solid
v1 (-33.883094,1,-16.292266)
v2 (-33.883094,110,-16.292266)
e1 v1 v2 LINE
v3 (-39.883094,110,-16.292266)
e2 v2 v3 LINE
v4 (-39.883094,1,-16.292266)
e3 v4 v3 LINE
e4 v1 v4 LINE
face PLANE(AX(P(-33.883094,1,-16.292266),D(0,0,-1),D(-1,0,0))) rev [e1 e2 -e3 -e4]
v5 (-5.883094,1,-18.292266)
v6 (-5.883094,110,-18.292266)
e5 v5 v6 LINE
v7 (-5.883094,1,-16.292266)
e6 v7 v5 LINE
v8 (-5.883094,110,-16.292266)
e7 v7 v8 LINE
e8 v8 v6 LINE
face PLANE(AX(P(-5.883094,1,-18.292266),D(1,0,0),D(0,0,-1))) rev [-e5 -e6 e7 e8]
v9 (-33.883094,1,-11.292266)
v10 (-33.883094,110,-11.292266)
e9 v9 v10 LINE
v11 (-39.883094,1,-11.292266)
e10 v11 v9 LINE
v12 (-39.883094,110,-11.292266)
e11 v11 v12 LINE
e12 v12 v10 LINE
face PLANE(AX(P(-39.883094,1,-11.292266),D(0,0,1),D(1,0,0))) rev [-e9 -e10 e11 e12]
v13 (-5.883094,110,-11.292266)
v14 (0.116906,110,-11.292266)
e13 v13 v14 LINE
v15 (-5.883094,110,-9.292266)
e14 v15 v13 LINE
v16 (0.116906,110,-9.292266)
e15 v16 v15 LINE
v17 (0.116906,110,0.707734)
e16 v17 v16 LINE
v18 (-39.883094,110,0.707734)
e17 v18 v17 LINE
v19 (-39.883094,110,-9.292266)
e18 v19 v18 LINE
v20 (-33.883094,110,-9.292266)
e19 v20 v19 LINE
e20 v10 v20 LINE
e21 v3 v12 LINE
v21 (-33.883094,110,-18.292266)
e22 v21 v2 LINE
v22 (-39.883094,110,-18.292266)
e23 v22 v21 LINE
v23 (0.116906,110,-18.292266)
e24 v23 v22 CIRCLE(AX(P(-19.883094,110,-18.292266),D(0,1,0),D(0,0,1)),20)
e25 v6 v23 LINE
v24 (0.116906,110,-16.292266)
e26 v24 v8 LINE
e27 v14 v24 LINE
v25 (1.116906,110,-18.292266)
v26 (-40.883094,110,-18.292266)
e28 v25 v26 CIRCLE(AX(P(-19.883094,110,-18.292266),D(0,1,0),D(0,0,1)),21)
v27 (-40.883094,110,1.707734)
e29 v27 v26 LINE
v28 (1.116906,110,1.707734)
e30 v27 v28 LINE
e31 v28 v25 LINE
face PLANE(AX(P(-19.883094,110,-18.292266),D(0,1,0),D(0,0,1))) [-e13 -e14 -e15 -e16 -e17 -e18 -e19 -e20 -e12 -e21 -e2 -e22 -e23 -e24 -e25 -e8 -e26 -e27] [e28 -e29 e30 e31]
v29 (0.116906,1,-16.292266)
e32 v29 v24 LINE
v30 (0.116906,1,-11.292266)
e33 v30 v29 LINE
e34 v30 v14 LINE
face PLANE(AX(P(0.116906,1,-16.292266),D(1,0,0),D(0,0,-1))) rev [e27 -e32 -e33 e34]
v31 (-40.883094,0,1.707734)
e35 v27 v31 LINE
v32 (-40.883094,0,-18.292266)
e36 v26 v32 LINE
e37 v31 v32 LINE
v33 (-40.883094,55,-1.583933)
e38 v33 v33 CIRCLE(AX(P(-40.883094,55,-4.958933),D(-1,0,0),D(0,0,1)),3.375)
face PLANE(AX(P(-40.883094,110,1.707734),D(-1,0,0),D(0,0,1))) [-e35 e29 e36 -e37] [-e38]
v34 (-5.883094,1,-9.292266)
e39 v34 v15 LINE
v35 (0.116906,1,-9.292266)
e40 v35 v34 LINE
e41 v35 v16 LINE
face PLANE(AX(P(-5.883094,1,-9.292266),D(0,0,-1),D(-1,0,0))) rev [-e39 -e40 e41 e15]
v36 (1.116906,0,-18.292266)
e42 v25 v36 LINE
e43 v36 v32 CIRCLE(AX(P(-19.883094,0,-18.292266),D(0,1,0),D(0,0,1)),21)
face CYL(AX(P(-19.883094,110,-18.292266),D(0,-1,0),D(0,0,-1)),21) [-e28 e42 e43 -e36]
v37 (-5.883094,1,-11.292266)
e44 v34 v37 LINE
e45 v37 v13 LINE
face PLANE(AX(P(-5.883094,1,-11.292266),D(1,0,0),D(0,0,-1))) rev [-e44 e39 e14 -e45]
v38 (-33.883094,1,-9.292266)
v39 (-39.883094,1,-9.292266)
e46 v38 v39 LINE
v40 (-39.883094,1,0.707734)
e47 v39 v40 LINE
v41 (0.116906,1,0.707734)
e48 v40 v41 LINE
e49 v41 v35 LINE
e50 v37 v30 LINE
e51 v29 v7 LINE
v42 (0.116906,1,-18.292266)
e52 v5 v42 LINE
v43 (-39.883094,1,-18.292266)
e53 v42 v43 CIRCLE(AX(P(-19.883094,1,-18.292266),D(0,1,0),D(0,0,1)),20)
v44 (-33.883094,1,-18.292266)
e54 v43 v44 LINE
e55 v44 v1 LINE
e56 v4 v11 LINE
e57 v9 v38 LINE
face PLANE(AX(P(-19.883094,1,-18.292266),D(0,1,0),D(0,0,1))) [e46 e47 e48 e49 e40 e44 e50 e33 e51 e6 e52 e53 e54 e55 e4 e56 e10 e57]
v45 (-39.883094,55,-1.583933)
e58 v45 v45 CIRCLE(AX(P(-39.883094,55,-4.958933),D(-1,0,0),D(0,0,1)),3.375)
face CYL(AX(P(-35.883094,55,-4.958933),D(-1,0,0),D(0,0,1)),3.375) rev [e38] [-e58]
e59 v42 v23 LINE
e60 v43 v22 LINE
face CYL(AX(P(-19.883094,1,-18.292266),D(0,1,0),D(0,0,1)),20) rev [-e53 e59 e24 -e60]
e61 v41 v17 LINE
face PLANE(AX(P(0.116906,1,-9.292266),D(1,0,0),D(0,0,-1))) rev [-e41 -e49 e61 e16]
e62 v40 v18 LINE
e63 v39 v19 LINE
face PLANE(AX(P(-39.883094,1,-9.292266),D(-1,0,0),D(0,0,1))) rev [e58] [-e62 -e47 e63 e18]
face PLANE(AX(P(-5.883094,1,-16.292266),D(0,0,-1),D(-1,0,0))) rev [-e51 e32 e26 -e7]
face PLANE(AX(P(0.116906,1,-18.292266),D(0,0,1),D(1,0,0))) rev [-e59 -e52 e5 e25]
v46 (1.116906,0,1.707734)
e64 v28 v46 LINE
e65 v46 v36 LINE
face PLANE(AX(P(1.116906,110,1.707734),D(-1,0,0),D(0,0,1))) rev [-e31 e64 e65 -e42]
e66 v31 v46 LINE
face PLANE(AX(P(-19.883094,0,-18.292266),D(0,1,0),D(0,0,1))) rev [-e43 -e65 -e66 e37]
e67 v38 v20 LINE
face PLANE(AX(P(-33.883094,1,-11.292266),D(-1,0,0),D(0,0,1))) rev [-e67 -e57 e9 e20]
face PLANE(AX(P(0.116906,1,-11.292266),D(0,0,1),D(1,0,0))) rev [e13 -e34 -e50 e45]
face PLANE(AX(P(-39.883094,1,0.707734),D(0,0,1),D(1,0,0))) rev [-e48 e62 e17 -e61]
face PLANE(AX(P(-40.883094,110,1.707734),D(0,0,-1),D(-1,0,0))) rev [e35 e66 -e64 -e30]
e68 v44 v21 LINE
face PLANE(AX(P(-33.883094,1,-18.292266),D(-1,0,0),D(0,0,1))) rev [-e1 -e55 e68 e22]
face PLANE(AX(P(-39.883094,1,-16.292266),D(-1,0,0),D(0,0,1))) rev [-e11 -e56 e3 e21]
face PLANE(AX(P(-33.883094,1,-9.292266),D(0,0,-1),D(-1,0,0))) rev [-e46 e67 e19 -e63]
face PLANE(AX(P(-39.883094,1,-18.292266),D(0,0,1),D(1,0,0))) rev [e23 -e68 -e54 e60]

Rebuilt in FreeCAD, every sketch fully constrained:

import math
import FreeCAD as App
import Part
import Sketcher

V = App.Vector

doc = App.newDocument("Part")
body = doc.addObject("PartDesign::Body", "Body")

sketch1 = body.newObject("Sketcher::SketchObject", "Sketch")
sketch1.AttachmentSupport = (doc.getObject("XZ_Plane"), [""])
sketch1.MapMode = "FlatFace"
sketch1.addGeometry([
    Part.LineSegment(V(-41, 2, 0), V(1, 2, 0)),
    Part.LineSegment(V(1, 2, 0), V(1, -18, 0)),
    Part.ArcOfCircle(Part.Circle(V(-20, -18, 0), V(0, 0, 1), 21), math.radians(180), math.radians(360)),
    Part.LineSegment(V(-41, -18, 0), V(-41, 2, 0)),
], False)
sketch1.addConstraint([
    Sketcher.Constraint("Coincident", 0, 2, 1, 1),
    Sketcher.Constraint("Tangent", 1, 2, 2, 2),
    Sketcher.Constraint("Tangent", 2, 1, 3, 1),
    Sketcher.Constraint("Coincident", 3, 2, 0, 1),
    Sketcher.Constraint("Horizontal", 0),
    Sketcher.Constraint("Vertical", 1),
    Sketcher.Constraint("Vertical", 3),
    Sketcher.Constraint("Radius", 2, 21.0),
    Sketcher.Constraint("DistanceY", 1, 2, 1, 1, 20.0),
    Sketcher.Constraint("DistanceX", 2, 3, -1, 1, 19.883094),
    Sketcher.Constraint("DistanceY", 2, 3, -1, 1, 18.292266),
])
pad1 = body.newObject("PartDesign::Pad", "Pad")
pad1.Profile = sketch1
pad1.Length = 110
pad1.Reversed = True

sketch2 = body.newObject("Sketcher::SketchObject", "Sketch001")
sketch2.AttachmentSupport = (doc.getObject("XZ_Plane"), [""])
sketch2.MapMode = "FlatFace"
sketch2.AttachmentOffset = App.Placement(V(0, 0, -110), App.Rotation())
sketch2.addGeometry([
    Part.LineSegment(V(-39.9, -16.3, 0), V(-39.9, -11.3, 0)),
    Part.LineSegment(V(-39.9, -11.3, 0), V(-33.9, -11.3, 0)),
    Part.LineSegment(V(-33.9, -11.3, 0), V(-33.9, -9.3, 0)),
    Part.LineSegment(V(-33.9, -9.3, 0), V(-39.9, -9.3, 0)),
    Part.LineSegment(V(-39.9, -9.3, 0), V(-39.9, 0.7, 0)),
    Part.LineSegment(V(-39.9, 0.7, 0), V(0.1, 0.7, 0)),
    Part.LineSegment(V(0.1, 0.7, 0), V(0.1, -9.3, 0)),
    Part.LineSegment(V(0.1, -9.3, 0), V(-5.9, -9.3, 0)),
    Part.LineSegment(V(-5.9, -9.3, 0), V(-5.9, -11.3, 0)),
    Part.LineSegment(V(-5.9, -11.3, 0), V(0.1, -11.3, 0)),
    Part.LineSegment(V(0.1, -11.3, 0), V(0.1, -16.3, 0)),
    Part.LineSegment(V(0.1, -16.3, 0), V(-5.9, -16.3, 0)),
    Part.LineSegment(V(-5.9, -16.3, 0), V(-5.9, -18.3, 0)),
    Part.LineSegment(V(-5.9, -18.3, 0), V(0.1, -18.3, 0)),
    Part.ArcOfCircle(Part.Circle(V(-19.9, -18.3, 0), V(0, 0, 1), 20), math.radians(180), math.radians(360)),
    Part.LineSegment(V(-39.9, -18.3, 0), V(-33.9, -18.3, 0)),
    Part.LineSegment(V(-33.9, -18.3, 0), V(-33.9, -16.3, 0)),
    Part.LineSegment(V(-33.9, -16.3, 0), V(-39.9, -16.3, 0)),
], False)
sketch2.addConstraint([
    Sketcher.Constraint("Coincident", 0, 2, 1, 1),
    Sketcher.Constraint("Coincident", 1, 2, 2, 1),
    Sketcher.Constraint("Coincident", 2, 2, 3, 1),
    Sketcher.Constraint("Coincident", 3, 2, 4, 1),
    Sketcher.Constraint("Coincident", 4, 2, 5, 1),
    Sketcher.Constraint("Coincident", 5, 2, 6, 1),
    Sketcher.Constraint("Coincident", 6, 2, 7, 1),
    Sketcher.Constraint("Coincident", 7, 2, 8, 1),
    Sketcher.Constraint("Coincident", 8, 2, 9, 1),
    Sketcher.Constraint("Coincident", 9, 2, 10, 1),
    Sketcher.Constraint("Coincident", 10, 2, 11, 1),
    Sketcher.Constraint("Coincident", 11, 2, 12, 1),
    Sketcher.Constraint("Coincident", 12, 2, 13, 1),
    Sketcher.Constraint("Coincident", 13, 2, 14, 2),
    Sketcher.Constraint("Coincident", 14, 1, 15, 1),
    Sketcher.Constraint("Coincident", 15, 2, 16, 1),
    Sketcher.Constraint("Coincident", 16, 2, 17, 1),
    Sketcher.Constraint("Coincident", 17, 2, 0, 1),
    Sketcher.Constraint("Vertical", 0),
    Sketcher.Constraint("Horizontal", 1),
    Sketcher.Constraint("Vertical", 2),
    Sketcher.Constraint("Horizontal", 3),
    Sketcher.Constraint("Vertical", 4),
    Sketcher.Constraint("Horizontal", 5),
    Sketcher.Constraint("Vertical", 6),
    Sketcher.Constraint("Horizontal", 7),
    Sketcher.Constraint("Vertical", 8),
    Sketcher.Constraint("Horizontal", 9),
    Sketcher.Constraint("Vertical", 10),
    Sketcher.Constraint("Horizontal", 11),
    Sketcher.Constraint("Vertical", 12),
    Sketcher.Constraint("Horizontal", 13),
    Sketcher.Constraint("Horizontal", 15),
    Sketcher.Constraint("Vertical", 16),
    Sketcher.Constraint("Horizontal", 17),
    Sketcher.Constraint("Horizontal", 3, 2, 6, 2),
    Sketcher.Constraint("Horizontal", 1, 2, 8, 2),
    Sketcher.Constraint("Horizontal", 14, 3, 12, 2),
    Sketcher.Constraint("Horizontal", 13, 2, 14, 1),
    Sketcher.Constraint("Horizontal", 11, 2, 16, 2),
    Sketcher.Constraint("Vertical", 0, 2, 3, 2),
    Sketcher.Constraint("Vertical", 6, 2, 9, 2),
    Sketcher.Constraint("Vertical", 8, 2, 11, 2),
    Sketcher.Constraint("Vertical", 10, 2, 13, 2),
    Sketcher.Constraint("Vertical", 4, 2, 14, 1),
    Sketcher.Constraint("Vertical", 2, 2, 15, 2),
    Sketcher.Constraint("Equal", 3, 7),
    Sketcher.Constraint("Equal", 8, 12),
    Sketcher.Constraint("Radius", 14, 20.0),
    Sketcher.Constraint("DistanceX", 1, 1, 1, 2, 6.0),
    Sketcher.Constraint("DistanceY", 0, 1, 0, 2, 5.0),
    Sketcher.Constraint("DistanceY", 2, 1, 2, 2, 2.0),
    Sketcher.Constraint("DistanceY", 4, 1, 4, 2, 10.0),
    Sketcher.Constraint("DistanceX", 14, 3, -1, 1, 19.883094),
    Sketcher.Constraint("DistanceY", 14, 3, -1, 1, 18.292266),
])
pocket1 = body.newObject("PartDesign::Pocket", "Pocket")
pocket1.Profile = sketch2
pocket1.Length = 109
pocket1.Reversed = True

sketch3 = body.newObject("Sketcher::SketchObject", "Sketch002")
sketch3.AttachmentSupport = (doc.getObject("YZ_Plane"), [""])
sketch3.MapMode = "FlatFace"
sketch3.AttachmentOffset = App.Placement(V(0, 0, -40.883094), App.Rotation())
sketch3.addGeometry(Part.Circle(V(55, -5, 0), V(0, 0, 1), 3.4), False)
sketch3.addConstraint([
    Sketcher.Constraint("Diameter", 0, 6.75),
    Sketcher.Constraint("DistanceX", -1, 1, 0, 3, 55.0),
    Sketcher.Constraint("DistanceY", 0, 3, -1, 1, 4.958933),
])
pocket2 = body.newObject("PartDesign::Pocket", "Pocket001")
pocket2.Profile = sketch3
pocket2.Length = 5
pocket2.Reversed = True

doc.recompute()
